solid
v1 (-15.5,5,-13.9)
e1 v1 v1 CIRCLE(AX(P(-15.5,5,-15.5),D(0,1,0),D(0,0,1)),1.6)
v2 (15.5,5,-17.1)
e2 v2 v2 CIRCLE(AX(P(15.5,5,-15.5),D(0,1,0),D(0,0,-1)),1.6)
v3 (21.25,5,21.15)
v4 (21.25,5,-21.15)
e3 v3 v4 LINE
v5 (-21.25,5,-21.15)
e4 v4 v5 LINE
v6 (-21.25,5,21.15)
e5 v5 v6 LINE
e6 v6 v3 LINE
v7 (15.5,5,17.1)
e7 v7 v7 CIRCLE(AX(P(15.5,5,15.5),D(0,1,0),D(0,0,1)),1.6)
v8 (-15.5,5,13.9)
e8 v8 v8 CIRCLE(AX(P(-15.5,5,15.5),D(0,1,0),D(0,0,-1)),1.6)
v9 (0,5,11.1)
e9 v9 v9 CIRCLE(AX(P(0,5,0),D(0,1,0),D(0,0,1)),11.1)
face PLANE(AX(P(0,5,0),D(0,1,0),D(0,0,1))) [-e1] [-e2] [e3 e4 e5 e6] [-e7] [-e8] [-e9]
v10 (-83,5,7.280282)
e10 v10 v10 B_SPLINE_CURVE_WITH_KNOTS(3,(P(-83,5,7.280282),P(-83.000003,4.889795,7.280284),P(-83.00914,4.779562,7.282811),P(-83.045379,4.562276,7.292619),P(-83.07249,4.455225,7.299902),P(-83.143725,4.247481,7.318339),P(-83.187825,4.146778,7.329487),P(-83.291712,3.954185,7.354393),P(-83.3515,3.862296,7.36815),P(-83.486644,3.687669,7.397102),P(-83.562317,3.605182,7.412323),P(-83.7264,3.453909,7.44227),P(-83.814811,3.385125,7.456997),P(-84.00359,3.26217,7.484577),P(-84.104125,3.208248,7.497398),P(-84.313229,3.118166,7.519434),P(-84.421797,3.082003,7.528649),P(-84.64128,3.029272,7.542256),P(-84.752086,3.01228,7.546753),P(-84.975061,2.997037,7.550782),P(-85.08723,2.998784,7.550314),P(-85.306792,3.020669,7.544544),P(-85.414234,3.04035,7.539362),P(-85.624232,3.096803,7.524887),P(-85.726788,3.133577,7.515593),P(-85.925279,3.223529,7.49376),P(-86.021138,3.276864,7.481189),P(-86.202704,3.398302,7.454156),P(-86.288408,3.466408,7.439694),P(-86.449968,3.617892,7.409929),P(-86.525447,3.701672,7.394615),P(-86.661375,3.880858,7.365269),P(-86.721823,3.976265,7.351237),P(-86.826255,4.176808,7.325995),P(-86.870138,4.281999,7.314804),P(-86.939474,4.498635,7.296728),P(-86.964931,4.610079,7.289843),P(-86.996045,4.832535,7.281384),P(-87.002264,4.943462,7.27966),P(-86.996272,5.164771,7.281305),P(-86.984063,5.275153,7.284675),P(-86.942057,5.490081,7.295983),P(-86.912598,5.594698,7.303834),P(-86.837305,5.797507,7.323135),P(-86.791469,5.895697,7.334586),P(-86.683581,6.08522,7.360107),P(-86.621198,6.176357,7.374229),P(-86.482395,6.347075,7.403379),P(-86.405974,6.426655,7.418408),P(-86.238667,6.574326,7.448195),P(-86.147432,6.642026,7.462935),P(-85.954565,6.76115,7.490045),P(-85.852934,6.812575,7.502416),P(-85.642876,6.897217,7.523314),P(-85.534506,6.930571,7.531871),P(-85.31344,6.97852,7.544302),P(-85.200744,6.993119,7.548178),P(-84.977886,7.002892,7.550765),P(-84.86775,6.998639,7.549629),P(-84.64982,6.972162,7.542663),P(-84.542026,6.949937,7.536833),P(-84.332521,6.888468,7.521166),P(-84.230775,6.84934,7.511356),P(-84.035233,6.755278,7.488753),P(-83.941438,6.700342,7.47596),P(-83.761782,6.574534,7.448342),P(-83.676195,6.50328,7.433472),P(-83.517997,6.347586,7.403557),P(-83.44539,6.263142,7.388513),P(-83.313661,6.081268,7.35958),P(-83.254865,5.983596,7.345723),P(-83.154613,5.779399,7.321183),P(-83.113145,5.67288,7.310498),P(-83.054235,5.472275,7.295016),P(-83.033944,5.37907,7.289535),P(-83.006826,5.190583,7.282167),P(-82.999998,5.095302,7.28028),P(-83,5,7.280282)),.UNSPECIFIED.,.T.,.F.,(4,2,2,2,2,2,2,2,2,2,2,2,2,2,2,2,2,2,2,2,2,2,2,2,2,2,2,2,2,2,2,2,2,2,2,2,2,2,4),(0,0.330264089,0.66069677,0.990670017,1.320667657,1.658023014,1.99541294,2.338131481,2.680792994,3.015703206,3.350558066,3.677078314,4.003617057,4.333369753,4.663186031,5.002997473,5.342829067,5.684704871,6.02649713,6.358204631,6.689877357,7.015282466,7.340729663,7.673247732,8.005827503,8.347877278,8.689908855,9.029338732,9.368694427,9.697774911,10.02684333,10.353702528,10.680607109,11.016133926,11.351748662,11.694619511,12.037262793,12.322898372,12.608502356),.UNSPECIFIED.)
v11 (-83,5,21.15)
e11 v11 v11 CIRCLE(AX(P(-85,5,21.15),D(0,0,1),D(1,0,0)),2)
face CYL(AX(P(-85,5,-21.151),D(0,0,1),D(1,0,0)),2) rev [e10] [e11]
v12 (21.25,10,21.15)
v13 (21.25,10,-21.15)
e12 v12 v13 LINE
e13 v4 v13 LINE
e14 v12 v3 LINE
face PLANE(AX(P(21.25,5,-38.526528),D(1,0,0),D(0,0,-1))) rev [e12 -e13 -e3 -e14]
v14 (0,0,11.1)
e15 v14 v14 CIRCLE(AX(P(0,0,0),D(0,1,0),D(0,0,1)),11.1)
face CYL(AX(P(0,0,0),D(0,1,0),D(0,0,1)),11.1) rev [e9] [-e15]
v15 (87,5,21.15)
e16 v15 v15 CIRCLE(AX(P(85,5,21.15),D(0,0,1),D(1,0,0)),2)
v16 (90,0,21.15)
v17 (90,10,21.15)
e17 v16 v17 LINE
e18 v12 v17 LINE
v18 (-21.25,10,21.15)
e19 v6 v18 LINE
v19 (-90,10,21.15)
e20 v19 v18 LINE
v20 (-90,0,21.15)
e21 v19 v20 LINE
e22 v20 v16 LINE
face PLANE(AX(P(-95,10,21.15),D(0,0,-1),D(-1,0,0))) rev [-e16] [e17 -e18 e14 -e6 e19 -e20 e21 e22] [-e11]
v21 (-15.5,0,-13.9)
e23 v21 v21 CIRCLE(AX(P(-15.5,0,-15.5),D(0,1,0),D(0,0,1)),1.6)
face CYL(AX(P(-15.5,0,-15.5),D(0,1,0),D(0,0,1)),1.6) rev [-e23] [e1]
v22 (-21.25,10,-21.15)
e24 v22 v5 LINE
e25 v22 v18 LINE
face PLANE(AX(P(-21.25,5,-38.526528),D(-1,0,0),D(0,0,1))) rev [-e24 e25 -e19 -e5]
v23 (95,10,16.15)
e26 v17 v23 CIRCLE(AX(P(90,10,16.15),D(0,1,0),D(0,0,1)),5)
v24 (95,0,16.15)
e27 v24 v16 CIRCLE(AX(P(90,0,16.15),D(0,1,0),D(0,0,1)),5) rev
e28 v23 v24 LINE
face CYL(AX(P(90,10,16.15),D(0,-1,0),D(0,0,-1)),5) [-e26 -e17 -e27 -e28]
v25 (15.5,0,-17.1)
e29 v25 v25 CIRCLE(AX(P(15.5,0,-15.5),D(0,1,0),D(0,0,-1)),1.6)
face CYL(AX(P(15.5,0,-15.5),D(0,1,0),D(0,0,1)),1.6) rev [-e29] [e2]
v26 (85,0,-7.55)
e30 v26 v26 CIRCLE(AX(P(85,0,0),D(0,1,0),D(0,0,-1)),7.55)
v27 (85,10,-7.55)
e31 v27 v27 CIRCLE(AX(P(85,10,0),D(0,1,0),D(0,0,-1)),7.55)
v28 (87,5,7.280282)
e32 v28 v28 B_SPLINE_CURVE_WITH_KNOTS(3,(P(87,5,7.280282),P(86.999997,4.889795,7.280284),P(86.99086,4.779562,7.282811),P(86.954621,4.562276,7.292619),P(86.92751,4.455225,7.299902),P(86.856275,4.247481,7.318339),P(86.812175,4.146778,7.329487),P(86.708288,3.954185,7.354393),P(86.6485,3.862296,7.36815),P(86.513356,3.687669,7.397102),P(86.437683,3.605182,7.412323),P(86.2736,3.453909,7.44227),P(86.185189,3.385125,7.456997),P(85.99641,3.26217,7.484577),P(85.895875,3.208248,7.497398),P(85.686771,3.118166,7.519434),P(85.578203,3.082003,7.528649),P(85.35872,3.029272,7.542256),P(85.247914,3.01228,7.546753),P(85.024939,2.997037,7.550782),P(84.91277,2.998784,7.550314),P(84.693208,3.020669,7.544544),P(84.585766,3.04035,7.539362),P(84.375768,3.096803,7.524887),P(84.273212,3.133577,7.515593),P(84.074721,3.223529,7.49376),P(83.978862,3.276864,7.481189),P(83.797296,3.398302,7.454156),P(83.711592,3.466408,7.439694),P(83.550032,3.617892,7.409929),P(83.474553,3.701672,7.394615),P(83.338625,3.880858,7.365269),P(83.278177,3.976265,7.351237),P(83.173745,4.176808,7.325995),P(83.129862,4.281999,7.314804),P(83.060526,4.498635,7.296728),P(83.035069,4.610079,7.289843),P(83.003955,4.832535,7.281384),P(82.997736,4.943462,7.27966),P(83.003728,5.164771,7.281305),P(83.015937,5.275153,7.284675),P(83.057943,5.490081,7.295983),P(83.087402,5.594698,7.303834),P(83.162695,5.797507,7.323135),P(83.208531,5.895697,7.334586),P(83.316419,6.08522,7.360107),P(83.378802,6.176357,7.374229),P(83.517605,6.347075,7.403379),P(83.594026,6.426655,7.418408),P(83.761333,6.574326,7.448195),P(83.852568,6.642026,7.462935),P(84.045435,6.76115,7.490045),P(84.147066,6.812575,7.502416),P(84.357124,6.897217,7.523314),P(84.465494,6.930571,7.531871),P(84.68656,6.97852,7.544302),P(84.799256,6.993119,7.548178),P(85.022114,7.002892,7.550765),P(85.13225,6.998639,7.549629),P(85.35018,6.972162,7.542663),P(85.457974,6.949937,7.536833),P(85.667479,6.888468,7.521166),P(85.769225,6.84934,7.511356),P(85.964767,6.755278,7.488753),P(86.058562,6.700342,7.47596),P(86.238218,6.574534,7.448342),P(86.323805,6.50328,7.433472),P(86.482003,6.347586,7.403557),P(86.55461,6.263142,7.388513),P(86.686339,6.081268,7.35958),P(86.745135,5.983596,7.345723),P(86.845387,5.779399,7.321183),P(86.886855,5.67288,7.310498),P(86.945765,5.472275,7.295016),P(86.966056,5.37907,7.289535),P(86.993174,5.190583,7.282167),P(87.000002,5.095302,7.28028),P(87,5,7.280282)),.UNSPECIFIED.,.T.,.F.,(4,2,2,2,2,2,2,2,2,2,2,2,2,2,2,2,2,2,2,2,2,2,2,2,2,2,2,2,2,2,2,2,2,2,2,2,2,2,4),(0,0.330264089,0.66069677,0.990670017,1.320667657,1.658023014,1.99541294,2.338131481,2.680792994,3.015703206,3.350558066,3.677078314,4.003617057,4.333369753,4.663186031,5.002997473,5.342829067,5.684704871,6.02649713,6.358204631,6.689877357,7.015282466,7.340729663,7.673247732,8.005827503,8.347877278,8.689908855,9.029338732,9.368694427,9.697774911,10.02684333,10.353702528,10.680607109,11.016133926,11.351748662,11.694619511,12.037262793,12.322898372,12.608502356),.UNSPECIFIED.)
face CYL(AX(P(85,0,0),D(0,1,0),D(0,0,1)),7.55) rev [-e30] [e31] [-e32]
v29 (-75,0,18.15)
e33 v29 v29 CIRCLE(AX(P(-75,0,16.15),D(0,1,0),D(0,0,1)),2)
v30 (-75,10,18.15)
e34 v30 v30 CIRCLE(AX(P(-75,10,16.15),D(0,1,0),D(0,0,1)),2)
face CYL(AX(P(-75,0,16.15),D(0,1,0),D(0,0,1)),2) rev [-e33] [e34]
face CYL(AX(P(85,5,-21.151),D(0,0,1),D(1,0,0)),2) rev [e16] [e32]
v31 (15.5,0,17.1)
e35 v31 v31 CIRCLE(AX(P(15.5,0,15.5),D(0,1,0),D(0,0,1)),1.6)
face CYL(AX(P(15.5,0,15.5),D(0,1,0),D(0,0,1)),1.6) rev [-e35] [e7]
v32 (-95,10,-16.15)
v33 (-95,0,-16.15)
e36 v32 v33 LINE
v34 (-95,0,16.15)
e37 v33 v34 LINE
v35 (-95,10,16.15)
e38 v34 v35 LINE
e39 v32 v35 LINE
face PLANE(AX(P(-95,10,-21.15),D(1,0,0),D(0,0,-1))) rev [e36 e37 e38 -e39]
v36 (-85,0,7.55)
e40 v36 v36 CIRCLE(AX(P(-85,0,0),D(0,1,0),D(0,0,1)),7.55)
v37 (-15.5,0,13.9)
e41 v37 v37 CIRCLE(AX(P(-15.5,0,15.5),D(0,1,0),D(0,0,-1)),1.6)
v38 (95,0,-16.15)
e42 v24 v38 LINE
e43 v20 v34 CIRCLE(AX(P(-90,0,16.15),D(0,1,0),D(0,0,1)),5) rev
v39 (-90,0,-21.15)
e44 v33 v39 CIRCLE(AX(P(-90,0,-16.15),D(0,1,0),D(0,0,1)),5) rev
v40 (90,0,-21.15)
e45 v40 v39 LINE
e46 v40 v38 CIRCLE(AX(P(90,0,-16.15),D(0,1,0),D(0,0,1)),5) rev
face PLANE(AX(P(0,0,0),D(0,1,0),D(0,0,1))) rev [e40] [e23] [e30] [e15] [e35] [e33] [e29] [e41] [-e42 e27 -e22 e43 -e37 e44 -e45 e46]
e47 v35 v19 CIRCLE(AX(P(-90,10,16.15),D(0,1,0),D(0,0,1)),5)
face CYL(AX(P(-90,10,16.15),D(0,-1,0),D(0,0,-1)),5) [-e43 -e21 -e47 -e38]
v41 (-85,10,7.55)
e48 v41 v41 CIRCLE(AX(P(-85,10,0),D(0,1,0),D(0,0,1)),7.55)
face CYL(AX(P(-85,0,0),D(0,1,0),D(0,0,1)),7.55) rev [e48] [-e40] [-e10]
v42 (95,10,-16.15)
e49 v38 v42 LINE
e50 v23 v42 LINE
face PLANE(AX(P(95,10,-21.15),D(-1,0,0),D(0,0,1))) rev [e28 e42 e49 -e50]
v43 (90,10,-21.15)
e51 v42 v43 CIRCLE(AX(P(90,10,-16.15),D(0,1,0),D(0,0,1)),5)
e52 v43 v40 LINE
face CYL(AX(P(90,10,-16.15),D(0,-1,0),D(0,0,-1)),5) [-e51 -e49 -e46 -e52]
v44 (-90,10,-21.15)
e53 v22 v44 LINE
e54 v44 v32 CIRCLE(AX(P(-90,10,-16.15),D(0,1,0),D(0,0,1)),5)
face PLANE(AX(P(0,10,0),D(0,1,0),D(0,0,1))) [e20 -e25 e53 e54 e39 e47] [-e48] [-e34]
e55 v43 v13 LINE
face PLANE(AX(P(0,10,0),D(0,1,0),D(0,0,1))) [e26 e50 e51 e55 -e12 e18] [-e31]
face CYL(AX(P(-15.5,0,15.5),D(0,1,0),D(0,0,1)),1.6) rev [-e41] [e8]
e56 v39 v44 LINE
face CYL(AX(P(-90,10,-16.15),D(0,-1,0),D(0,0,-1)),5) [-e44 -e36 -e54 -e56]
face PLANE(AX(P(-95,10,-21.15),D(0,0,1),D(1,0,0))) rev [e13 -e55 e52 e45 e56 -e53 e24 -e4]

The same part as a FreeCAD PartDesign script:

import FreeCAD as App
import Part
import Sketcher

V = App.Vector


def edges_at(feature, points):
    """Names of the edges that pass closest to the given points."""
    edges = feature.Shape.Edges
    near = lambda p: min(range(len(edges)), key=lambda i: edges[i].distToShape(Part.Vertex(*p))[0])
    return sorted({f"Edge{near(p) + 1}" for p in points})


def add_polygon(sketch, points):
    """Adds a closed chain of lines whose ends are joined by coincident constraints."""
    first, n = sketch.GeometryCount, len(points)
    for a, b in zip(points, points[1:] + points[:1]):
        sketch.addGeometry(Part.LineSegment(App.Vector(*a, 0), App.Vector(*b, 0)), False)
    for i in range(n):
        sketch.addConstraint(Sketcher.Constraint("Coincident", first + i, 2, first + (i + 1) % n, 1))

doc = App.newDocument("Part")
body = doc.addObject("PartDesign::Body", "Body")

# Sketch on XZ plane
sketch1 = body.newObject("Sketcher::SketchObject", "Sketch")
sketch1.AttachmentSupport = (doc.getObject("XZ_Plane"), [""])
sketch1.MapMode = "FlatFace"
add_polygon(sketch1, [(-95, -21), (-95, 21), (95, 21), (95, -21)])  # lines 0-3
sketch1.addConstraint(Sketcher.Constraint("Vertical", 0))
sketch1.addConstraint(Sketcher.Constraint("Horizontal", 1))
sketch1.addConstraint(Sketcher.Constraint("Vertical", 2))
sketch1.addConstraint(Sketcher.Constraint("Horizontal", 3))
sketch1.addConstraint(Sketcher.Constraint("Symmetric", 0, 2, 2, 2, -1, 1))
sketch1.addConstraint(Sketcher.Constraint("DistanceX", 1, 1, 1, 2, 190.0))
sketch1.addConstraint(Sketcher.Constraint("DistanceY", 0, 1, 0, 2, 42.3))
pad1 = body.newObject("PartDesign::Pad", "Pad")
pad1.Profile = sketch1
pad1.Length = 10
pad1.Reversed = True

# Sketch on XZ plane
sketch2 = body.newObject("Sketcher::SketchObject", "Sketch001")
sketch2.AttachmentSupport = (doc.getObject("XZ_Plane"), [""])
sketch2.MapMode = "FlatFace"
sketch2.AttachmentOffset = App.Placement(V(0, 0, -10), App.Rotation())
add_polygon(sketch2, [(-21, -39), (-21, 39), (21, 39), (21, -39)])  # lines 0-3
sketch2.addConstraint(Sketcher.Constraint("Vertical", 0))
sketch2.addConstraint(Sketcher.Constraint("Horizontal", 1))
sketch2.addConstraint(Sketcher.Constraint("Vertical", 2))
sketch2.addConstraint(Sketcher.Constraint("Horizontal", 3))
sketch2.addConstraint(Sketcher.Constraint("Symmetric", 0, 2, 2, 2, -1, 1))
sketch2.addConstraint(Sketcher.Constraint("DistanceX", 1, 1, 1, 2, 42.5))
sketch2.addConstraint(Sketcher.Constraint("DistanceY", 0, 1, 0, 2, 77.053056))
pocket1 = body.newObject("PartDesign::Pocket", "Pocket")
pocket1.Profile = sketch2
pocket1.Length = 5
pocket1.Reversed = True

# Sketch on XZ plane
sketch3 = body.newObject("Sketcher::SketchObject", "Sketch002")
sketch3.AttachmentSupport = (doc.getObject("XZ_Plane"), [""])
sketch3.MapMode = "FlatFace"
sketch3.AttachmentOffset = App.Placement(V(0, 0, -5), App.Rotation())
sketch3.addGeometry(Part.Circle(V(-15.5, -15.5, 0), V(0, 0, 1), 1.6), False)
sketch3.addGeometry(Part.Circle(V(15.5, -15.5, 0), V(0, 0, 1), 1.6), False)
sketch3.addGeometry(Part.Circle(V(15.5, 15.5, 0), V(0, 0, 1), 1.6), False)
sketch3.addGeometry(Part.Circle(V(-15.5, 15.5, 0), V(0, 0, 1), 1.6), False)
sketch3.addGeometry(Part.Circle(V(0, 0, 0), V(0, 0, 1), 11.1), False)
sketch3.addConstraint(Sketcher.Constraint("Coincident", 4, 3, -1, 1))
sketch3.addConstraint(Sketcher.Constraint("Equal", 0, 1))
sketch3.addConstraint(Sketcher.Constraint("Equal", 1, 2))
sketch3.addConstraint(Sketcher.Constraint("Equal", 2, 3))
sketch3.addConstraint(Sketcher.Constraint("Symmetric", 0, 3, 2, 3, -1, 1))
sketch3.addConstraint(Sketcher.Constraint("Symmetric", 1, 3, 3, 3, -1, 1))
sketch3.addConstraint(Sketcher.Constraint("Symmetric", 0, 3, 1, 3, -2))
sketch3.addConstraint(Sketcher.Constraint("Diameter", 0, 3.2))
sketch3.addConstraint(Sketcher.Constraint("Diameter", 4, 22.2))
sketch3.addConstraint(Sketcher.Constraint("DistanceX", 0, 3, 1, 3, 31.0))
sketch3.addConstraint(Sketcher.Constraint("DistanceY", 1, 3, 2, 3, 31.0))
pocket2 = body.newObject("PartDesign::Pocket", "Pocket001")
pocket2.Profile = sketch3
pocket2.Type = "ThroughAll"
pocket2.Reversed = True

# Sketch on XZ plane
sketch4 = body.newObject("Sketcher::SketchObject", "Sketch003")
sketch4.AttachmentSupport = (doc.getObject("XZ_Plane"), [""])
sketch4.MapMode = "FlatFace"
sketch4.AttachmentOffset = App.Placement(V(0, 0, -10), App.Rotation())
sketch4.addGeometry(Part.Circle(V(-85, 0, 0), V(0, 0, 1), 8), False)
sketch4.addGeometry(Part.Circle(V(85, 0, 0), V(0, 0, 1), 8), False)
sketch4.addConstraint(Sketcher.Constraint("Equal", 0, 1))
sketch4.addConstraint(Sketcher.Constraint("Symmetric", 0, 3, 1, 3, -1, 1))
sketch4.addConstraint(Sketcher.Constraint("PointOnObject", 0, 3, -1))
sketch4.addConstraint(Sketcher.Constraint("Diameter", 0, 15.1))
sketch4.addConstraint(Sketcher.Constraint("DistanceX", 0, 3, -1, 1, 85.0))
pocket3 = body.newObject("PartDesign::Pocket", "Pocket002")
pocket3.Profile = sketch4
pocket3.Type = "ThroughAll"
pocket3.Reversed = True
doc.recompute()

fillet = body.newObject("PartDesign::Fillet", "Fillet")
fillet.Base = (pocket3, edges_at(pocket3, [
    (95, 5, 21.15),
    (-95, 5, 21.15),
    (-95, 5, -21.15),
    (95, 5, -21.15),
]))
fillet.Radius = 5

# Sketch on XY plane
sketch5 = body.newObject("Sketcher::SketchObject", "Sketch004")
sketch5.AttachmentSupport = (doc.getObject("XY_Plane"), [""])
sketch5.MapMode = "FlatFace"
sketch5.AttachmentOffset = App.Placement(V(0, 0, 21.15), App.Rotation())
sketch5.addGeometry(Part.Circle(V(85, 5, 0), V(0, 0, 1), 2), False)
sketch5.addConstraint(Sketcher.Constraint("Diameter", 0, 4.0))
sketch5.addConstraint(Sketcher.Constraint("DistanceX", -1, 1, 0, 3, 85.0))
sketch5.addConstraint(Sketcher.Constraint("DistanceY", -1, 1, 0, 3, 5.0))
pocket4 = body.newObject("PartDesign::Pocket", "Pocket003")
pocket4.Profile = sketch5
pocket4.Type = "UpToFirst"

# Sketch on XY plane
sketch6 = body.newObject("Sketcher::SketchObject", "Sketch005")
sketch6.AttachmentSupport = (doc.getObject("XY_Plane"), [""])
sketch6.MapMode = "FlatFace"
sketch6.AttachmentOffset = App.Placement(V(0, 0, 21.15), App.Rotation())
sketch6.addGeometry(Part.Circle(V(-85, 5, 0), V(0, 0, 1), 2), False)
sketch6.addConstraint(Sketcher.Constraint("Diameter", 0, 4.0))
sketch6.addConstraint(Sketcher.Constraint("DistanceX", 0, 3, -1, 1, 85.0))
sketch6.addConstraint(Sketcher.Constraint("DistanceY", -1, 1, 0, 3, 5.0))
pocket5 = body.newObject("PartDesign::Pocket", "Pocket004")
pocket5.Profile = sketch6
pocket5.Type = "UpToFirst"

# Sketch on XZ plane
sketch7 = body.newObject("Sketcher::SketchObject", "Sketch006")
sketch7.AttachmentSupport = (doc.getObject("XZ_Plane"), [""])
sketch7.MapMode = "FlatFace"
sketch7.AttachmentOffset = App.Placement(V(0, 0, -10), App.Rotation())
sketch7.addGeometry(Part.Circle(V(-75, 16.1, 0), V(0, 0, 1), 2), False)
sketch7.addConstraint(Sketcher.Constraint("Diameter", 0, 4.0))
sketch7.addConstraint(Sketcher.Constraint("DistanceX", 0, 3, -1, 1, 75.0))
sketch7.addConstraint(Sketcher.Constraint("DistanceY", -1, 1, 0, 3, 16.15))
pocket6 = body.newObject("PartDesign::Pocket", "Pocket005")
pocket6.Profile = sketch7
pocket6.Type = "ThroughAll"
pocket6.Reversed = True

doc.recompute()
